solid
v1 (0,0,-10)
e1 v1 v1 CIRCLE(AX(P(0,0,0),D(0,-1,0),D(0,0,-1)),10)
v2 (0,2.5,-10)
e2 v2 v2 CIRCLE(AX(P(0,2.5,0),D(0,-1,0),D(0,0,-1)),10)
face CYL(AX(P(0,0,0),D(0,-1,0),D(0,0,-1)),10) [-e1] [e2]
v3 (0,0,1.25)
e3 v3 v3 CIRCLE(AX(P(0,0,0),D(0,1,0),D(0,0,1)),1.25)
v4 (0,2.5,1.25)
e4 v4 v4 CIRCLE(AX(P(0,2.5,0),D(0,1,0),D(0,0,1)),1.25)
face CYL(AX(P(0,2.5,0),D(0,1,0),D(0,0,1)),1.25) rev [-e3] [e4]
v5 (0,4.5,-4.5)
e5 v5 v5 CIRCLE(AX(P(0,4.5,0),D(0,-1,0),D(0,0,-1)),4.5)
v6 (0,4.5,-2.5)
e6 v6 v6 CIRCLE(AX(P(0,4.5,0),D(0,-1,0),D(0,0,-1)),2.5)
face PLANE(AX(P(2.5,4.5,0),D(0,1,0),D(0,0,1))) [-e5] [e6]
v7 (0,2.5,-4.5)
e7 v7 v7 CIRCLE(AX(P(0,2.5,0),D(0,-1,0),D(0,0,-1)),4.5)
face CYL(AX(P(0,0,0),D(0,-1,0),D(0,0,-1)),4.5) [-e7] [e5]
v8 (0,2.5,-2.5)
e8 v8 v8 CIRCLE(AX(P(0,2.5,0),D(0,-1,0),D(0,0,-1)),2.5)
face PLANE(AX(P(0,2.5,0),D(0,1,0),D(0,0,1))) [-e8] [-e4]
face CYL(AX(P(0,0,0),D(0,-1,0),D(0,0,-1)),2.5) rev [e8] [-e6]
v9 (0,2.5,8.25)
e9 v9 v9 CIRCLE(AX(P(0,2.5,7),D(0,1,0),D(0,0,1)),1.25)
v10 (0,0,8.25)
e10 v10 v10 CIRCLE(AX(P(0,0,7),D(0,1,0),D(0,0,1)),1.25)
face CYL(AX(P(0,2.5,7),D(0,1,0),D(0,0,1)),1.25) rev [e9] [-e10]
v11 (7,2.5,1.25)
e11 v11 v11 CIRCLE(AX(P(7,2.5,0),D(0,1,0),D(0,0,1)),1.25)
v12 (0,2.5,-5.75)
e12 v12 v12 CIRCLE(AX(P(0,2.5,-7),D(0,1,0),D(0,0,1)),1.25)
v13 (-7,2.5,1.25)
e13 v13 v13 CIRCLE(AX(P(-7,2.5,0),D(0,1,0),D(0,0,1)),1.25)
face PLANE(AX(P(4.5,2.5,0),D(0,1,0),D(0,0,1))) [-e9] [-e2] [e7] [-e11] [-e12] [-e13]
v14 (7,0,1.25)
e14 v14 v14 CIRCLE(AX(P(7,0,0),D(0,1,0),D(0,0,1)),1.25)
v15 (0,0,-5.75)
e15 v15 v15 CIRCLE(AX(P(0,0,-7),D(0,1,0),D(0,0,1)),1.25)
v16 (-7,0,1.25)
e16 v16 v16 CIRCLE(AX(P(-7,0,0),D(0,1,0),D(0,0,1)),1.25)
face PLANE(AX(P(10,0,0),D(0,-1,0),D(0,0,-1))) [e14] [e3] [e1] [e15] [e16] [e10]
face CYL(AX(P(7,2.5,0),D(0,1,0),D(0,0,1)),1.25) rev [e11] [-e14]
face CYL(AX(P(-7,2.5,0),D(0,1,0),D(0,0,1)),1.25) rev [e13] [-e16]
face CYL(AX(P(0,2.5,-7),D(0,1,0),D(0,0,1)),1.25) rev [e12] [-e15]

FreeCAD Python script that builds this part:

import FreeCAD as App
import Part
import Sketcher

V = App.Vector
Q = App.Units.Quantity


def add_polygon(sketch, points):
    """Adds a closed chain of lines whose ends are joined by coincident constraints."""
    first, n = sketch.GeometryCount, len(points)
    for a, b in zip(points, points[1:] + points[:1]):
        sketch.addGeometry(Part.LineSegment(App.Vector(*a, 0), App.Vector(*b, 0)), False)
    for i in range(n):
        sketch.addConstraint(Sketcher.Constraint("Coincident", first + i, 2, first + (i + 1) % n, 1))

doc = App.newDocument("Part")
body = doc.addObject("PartDesign::Body", "Body")

sketch1 = body.newObject("Sketcher::SketchObject", "Sketch")
sketch1.AttachmentSupport = (doc.getObject("XY_Plane"), [""])
sketch1.MapMode = "FlatFace"
add_polygon(sketch1, [(2.5, 2.5), (0, 2.5), (0, 0), (10, 0), (10, 2.5), (4.5, 2.5), (4.5, 4.5), (2.5, 4.5)])
sketch1.addConstraint([
    Sketcher.Constraint("Horizontal", 0),
    Sketcher.Constraint("Vertical", 1),
    Sketcher.Constraint("Horizontal", 2),
    Sketcher.Constraint("Vertical", 3),
    Sketcher.Constraint("Horizontal", 4),
    Sketcher.Constraint("Vertical", 5),
    Sketcher.Constraint("Horizontal", 6),
    Sketcher.Constraint("Vertical", 7),
    Sketcher.Constraint("Coincident", 1, 2, -1, 1),
    Sketcher.Constraint("Horizontal", 0, 2, 3, 2),
    Sketcher.Constraint("Equal", 0, 1),
    Sketcher.Constraint("Equal", 6, 5),
    Sketcher.Constraint("DistanceX", 2, 1, 2, 2, Q("10 mm")),
    Sketcher.Constraint("DistanceX", 6, 2, 6, 1, Q("2 mm")),
    Sketcher.Constraint("DistanceX", 0, 2, 0, 1, Q("2.5 mm")),
])
revolution = body.newObject("PartDesign::Revolution", "Revolution")
revolution.Profile = sketch1
revolution.ReferenceAxis = (sketch1, ["V_Axis"])
revolution.Angle = 360

sketch2 = body.newObject("Sketcher::SketchObject", "Sketch001")
sketch2.AttachmentSupport = (doc.getObject("XZ_Plane"), [""])
sketch2.MapMode = "FlatFace"
sketch2.AttachmentOffset = App.Placement(V(0, 0, -2.5), App.Rotation())
sketch2.addGeometry([
    Part.Circle(V(0, -7, 0), V(0, 0, 1), 1.2),
    Part.Circle(V(0, 7, 0), V(0, 0, 1), 1.2),
    Part.Circle(V(-7, 0, 0), V(0, 0, 1), 1.2),
    Part.Circle(V(7, 0, 0), V(0, 0, 1), 1.2),
    Part.Circle(V(0, 0, 0), V(0, 0, 1), 1.2),
], False)
sketch2.addConstraint([
    Sketcher.Constraint("Coincident", 4, 3, -1, 1),
    Sketcher.Constraint("Equal", 0, 1),
    Sketcher.Constraint("Equal", 1, 2),
    Sketcher.Constraint("Equal", 2, 3),
    Sketcher.Constraint("Equal", 3, 4),
    Sketcher.Constraint("Symmetric", 0, 3, 1, 3, -1, 1),
    Sketcher.Constraint("Symmetric", 2, 3, 3, 3, -1, 1),
    Sketcher.Constraint("PointOnObject", 0, 3, -2),
    Sketcher.Constraint("PointOnObject", 2, 3, -1),
    Sketcher.Constraint("Diameter", 0, Q("2.5 mm")),
    Sketcher.Constraint("DistanceY", 0, 3, -1, 1, Q("7 mm")),
    Sketcher.Constraint("DistanceX", 2, 3, -1, 1, Q("7 mm")),
])
doc.recompute()
hole = body.newObject("PartDesign::Hole", "Hole")
hole.Profile = sketch2
hole.ThreadType = "None"
hole.Diameter = 2.5
hole.DepthType = "ThroughAll"
hole.Reversed = True

doc.recompute()
